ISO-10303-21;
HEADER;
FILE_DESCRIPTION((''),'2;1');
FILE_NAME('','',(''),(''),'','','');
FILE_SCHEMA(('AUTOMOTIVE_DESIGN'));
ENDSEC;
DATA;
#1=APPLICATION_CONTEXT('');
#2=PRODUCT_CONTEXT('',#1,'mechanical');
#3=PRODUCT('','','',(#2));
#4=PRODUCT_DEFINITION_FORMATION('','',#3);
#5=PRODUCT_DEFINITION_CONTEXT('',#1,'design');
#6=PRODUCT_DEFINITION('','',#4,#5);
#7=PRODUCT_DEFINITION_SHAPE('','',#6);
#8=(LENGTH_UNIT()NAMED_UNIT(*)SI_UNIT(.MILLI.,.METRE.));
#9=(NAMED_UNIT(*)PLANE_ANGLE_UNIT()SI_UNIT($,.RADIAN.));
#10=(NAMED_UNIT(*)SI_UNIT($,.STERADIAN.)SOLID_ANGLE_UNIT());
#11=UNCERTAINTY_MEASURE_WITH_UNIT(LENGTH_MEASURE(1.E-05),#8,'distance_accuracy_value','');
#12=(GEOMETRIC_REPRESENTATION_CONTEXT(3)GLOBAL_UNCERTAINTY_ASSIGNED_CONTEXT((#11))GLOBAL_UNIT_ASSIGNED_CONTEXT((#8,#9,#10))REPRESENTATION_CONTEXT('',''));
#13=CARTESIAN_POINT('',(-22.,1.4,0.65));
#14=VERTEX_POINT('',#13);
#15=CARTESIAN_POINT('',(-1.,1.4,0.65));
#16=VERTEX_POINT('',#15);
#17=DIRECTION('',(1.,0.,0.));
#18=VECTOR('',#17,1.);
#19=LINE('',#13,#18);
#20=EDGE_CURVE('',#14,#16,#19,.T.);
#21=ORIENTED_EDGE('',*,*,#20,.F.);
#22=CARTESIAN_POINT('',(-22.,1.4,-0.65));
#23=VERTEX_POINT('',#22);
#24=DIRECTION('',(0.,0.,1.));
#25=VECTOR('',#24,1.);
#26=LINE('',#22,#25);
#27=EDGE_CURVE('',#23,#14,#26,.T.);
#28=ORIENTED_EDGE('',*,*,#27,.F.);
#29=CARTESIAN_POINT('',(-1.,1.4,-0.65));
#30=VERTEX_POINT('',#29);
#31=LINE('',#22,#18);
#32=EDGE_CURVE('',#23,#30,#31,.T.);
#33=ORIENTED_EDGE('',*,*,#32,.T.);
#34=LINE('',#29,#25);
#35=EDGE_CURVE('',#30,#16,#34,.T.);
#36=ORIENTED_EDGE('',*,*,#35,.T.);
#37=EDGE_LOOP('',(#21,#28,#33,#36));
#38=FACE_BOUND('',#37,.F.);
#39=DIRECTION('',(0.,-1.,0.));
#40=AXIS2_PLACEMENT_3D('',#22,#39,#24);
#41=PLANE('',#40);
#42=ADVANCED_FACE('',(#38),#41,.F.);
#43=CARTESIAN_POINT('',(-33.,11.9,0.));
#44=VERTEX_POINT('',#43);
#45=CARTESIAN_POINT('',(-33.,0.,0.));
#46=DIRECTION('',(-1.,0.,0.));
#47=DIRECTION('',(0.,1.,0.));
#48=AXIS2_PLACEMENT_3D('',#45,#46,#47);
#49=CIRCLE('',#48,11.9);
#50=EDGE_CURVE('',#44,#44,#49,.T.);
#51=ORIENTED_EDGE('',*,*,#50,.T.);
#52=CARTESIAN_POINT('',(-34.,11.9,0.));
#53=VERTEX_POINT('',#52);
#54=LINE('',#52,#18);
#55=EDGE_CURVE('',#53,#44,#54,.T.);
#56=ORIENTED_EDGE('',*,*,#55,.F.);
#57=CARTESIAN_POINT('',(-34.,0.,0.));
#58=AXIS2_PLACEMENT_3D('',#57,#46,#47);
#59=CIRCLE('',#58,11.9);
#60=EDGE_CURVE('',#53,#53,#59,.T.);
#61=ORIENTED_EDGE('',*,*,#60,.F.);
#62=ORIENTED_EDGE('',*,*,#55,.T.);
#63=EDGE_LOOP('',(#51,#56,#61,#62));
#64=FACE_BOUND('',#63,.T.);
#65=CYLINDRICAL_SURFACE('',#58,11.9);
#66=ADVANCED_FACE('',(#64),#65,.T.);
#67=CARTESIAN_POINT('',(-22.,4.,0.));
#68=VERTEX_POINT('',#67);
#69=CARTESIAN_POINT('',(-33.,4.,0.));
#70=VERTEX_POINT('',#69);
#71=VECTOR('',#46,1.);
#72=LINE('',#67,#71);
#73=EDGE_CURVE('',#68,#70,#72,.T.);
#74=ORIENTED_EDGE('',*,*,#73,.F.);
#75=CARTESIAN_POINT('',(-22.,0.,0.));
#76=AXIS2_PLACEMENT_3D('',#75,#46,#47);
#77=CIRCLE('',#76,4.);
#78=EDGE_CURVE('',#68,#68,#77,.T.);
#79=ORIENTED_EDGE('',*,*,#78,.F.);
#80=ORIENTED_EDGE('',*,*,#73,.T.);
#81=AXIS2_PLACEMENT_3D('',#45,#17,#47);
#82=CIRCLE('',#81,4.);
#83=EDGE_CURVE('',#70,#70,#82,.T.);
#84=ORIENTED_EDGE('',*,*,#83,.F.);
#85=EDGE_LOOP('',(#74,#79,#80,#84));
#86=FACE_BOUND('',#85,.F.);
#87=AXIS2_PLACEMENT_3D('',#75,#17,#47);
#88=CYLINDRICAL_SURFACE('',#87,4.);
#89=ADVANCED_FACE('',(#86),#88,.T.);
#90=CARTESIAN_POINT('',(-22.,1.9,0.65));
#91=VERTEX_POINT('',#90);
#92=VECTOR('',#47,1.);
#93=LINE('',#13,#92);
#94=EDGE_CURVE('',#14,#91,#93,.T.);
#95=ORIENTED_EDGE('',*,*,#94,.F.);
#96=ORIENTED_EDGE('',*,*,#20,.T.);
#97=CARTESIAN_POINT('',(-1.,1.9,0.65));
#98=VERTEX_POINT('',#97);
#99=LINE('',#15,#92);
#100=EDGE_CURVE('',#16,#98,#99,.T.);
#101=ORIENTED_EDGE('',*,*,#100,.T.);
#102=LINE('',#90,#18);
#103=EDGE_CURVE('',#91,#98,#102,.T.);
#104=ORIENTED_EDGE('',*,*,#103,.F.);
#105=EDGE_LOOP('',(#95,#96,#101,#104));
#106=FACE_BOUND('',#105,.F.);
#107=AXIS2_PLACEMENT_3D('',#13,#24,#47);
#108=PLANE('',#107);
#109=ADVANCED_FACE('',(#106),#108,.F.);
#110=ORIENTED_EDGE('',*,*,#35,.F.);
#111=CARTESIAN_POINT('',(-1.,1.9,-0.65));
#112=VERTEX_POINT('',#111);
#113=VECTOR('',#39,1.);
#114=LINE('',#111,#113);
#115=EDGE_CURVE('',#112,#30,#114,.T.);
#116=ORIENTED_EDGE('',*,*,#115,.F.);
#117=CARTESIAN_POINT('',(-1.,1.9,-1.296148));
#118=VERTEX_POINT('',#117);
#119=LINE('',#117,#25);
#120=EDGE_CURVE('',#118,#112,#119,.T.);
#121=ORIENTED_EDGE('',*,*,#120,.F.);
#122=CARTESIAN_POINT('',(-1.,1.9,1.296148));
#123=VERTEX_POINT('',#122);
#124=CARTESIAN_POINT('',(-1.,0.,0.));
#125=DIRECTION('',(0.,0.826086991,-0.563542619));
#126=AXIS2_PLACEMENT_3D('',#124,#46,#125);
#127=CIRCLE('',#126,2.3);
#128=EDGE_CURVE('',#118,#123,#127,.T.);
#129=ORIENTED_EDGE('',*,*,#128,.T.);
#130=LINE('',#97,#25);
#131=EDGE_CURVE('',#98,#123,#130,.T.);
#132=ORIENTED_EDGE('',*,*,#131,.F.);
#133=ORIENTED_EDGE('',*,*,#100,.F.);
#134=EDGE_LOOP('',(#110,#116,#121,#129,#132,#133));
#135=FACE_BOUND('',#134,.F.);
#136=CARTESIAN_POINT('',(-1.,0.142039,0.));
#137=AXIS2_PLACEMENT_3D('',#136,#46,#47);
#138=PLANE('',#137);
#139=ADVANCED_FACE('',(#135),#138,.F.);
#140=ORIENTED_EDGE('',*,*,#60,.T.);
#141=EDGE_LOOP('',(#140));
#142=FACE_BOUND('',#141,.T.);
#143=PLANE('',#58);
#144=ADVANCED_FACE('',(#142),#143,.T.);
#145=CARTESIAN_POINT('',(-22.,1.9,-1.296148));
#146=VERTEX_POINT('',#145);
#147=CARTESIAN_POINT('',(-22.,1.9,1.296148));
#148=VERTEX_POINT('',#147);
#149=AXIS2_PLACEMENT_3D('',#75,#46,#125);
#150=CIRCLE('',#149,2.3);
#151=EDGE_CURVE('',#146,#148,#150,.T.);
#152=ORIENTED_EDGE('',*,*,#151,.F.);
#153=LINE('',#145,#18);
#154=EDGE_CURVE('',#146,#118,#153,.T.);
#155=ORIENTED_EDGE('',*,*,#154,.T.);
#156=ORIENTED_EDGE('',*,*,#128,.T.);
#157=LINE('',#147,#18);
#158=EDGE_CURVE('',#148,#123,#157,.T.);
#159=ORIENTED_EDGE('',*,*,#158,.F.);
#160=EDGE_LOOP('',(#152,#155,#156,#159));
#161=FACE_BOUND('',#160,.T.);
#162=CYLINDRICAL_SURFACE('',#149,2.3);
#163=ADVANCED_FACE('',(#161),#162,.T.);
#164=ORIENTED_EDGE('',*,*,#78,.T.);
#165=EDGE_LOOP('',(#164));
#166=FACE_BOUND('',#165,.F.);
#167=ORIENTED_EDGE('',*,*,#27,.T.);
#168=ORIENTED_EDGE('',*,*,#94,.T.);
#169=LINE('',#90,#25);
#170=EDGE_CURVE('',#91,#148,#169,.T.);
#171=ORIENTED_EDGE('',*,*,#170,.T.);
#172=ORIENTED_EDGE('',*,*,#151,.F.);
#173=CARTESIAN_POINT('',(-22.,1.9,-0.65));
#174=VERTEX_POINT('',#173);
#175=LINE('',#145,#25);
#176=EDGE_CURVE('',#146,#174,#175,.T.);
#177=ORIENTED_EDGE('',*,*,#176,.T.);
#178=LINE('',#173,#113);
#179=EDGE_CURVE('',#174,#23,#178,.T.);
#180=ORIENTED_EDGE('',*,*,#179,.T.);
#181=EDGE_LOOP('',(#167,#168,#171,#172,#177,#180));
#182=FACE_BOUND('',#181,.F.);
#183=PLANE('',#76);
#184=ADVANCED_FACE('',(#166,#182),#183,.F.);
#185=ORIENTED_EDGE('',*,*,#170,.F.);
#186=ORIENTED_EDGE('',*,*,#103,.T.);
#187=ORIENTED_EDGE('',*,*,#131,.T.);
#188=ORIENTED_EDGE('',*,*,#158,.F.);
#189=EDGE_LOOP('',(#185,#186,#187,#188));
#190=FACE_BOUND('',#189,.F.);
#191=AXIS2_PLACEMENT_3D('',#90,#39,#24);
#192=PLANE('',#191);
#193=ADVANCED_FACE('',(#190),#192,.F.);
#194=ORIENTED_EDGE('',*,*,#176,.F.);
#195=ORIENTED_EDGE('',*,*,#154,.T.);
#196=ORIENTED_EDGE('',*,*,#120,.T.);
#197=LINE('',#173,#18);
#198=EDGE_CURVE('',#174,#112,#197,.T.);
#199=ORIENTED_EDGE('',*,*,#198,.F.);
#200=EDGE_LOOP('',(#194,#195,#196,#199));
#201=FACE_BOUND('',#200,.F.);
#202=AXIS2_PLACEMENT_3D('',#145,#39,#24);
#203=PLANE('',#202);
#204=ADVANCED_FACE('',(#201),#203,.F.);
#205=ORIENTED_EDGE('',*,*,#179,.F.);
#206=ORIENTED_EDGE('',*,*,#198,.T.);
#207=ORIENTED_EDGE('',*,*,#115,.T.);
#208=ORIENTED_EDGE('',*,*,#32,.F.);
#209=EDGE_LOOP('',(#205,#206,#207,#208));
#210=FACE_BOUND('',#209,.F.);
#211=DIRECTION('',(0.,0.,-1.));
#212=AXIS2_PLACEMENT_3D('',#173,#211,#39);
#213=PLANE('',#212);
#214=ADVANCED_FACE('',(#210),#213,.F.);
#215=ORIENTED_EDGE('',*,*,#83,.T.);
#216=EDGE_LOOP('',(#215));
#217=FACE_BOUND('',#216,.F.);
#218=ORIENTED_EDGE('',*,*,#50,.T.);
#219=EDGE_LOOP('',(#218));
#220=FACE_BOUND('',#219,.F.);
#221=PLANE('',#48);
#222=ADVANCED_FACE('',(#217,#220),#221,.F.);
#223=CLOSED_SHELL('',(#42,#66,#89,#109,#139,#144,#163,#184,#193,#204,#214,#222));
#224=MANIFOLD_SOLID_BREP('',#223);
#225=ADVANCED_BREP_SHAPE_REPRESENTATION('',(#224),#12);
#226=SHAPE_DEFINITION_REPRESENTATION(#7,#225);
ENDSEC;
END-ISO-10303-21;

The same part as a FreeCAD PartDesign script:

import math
import FreeCAD as App
import Part
import Sketcher

V = App.Vector
Q = App.Units.Quantity

doc = App.newDocument("Part")
body = doc.addObject("PartDesign::Body", "Body")

# Sketch on YZ plane
sketch1 = doc.addObject("Sketcher::SketchObject", "Sketch")
body.addObject(sketch1)
sketch1.AttachmentSupport = (doc.YZ_Plane, [""])
sketch1.MapMode = "FlatFace"
sketch1.addGeometry(Part.Circle(V(0, 0, 0), V(0, 0, 1), 4), False)
sketch1.addConstraint([
    Sketcher.Constraint("Coincident", 0, 3, -1, 1),
    Sketcher.Constraint("Diameter", 0, Q("8 mm")),
])
pad1 = doc.addObject("PartDesign::Pad", "Pad")
body.addObject(pad1)
pad1.Profile = sketch1
pad1.Length = 12

# Sketch on YZ plane
sketch2 = doc.addObject("Sketcher::SketchObject", "Sketch001")
body.addObject(sketch2)
sketch2.AttachmentSupport = (doc.YZ_Plane, [""])
sketch2.MapMode = "FlatFace"
sketch2.addGeometry([
    Part.ArcOfCircle(Part.Circle(V(0, 0, 0), V(0, 0, 1), 2.3), math.radians(34), math.radians(326)),  # 0
    Part.LineSegment(V(1.9, -1.3, 0), V(1.9, -0.7, 0)),  # 1
    Part.LineSegment(V(1.9, -0.7, 0), V(1.4, -0.7, 0)),  # 2
    Part.LineSegment(V(1.4, -0.7, 0), V(1.4, 0.7, 0)),  # 3
    Part.LineSegment(V(1.4, 0.7, 0), V(1.9, 0.7, 0)),  # 4
    Part.LineSegment(V(1.9, 0.7, 0), V(1.9, 1.3, 0)),  # 5
], False)
sketch2.addConstraint([
    Sketcher.Constraint("Coincident", 0, 2, 1, 1),
    Sketcher.Constraint("Coincident", 1, 2, 2, 1),
    Sketcher.Constraint("Coincident", 2, 2, 3, 1),
    Sketcher.Constraint("Coincident", 3, 2, 4, 1),
    Sketcher.Constraint("Coincident", 4, 2, 5, 1),
    Sketcher.Constraint("Coincident", 5, 2, 0, 1),
    Sketcher.Constraint("Vertical", 1),
    Sketcher.Constraint("Horizontal", 2),
    Sketcher.Constraint("Vertical", 3),
    Sketcher.Constraint("Horizontal", 4),
    Sketcher.Constraint("Vertical", 5),
    Sketcher.Constraint("Coincident", 0, 3, -1, 1),
    Sketcher.Constraint("Symmetric", 1, 2, 4, 2, -1),
    Sketcher.Constraint("Radius", 0, Q("2.3 mm")),
    Sketcher.Constraint("DistanceX", 2, 2, 2, 1, Q("0.5 mm")),
    Sketcher.Constraint("DistanceY", 3, 1, 3, 2, Q("1.3 mm")),
    Sketcher.Constraint("DistanceX", -1, 1, 0, 2, Q("1.9 mm")),
])
pad2 = doc.addObject("PartDesign::Pad", "Pad001")
body.addObject(pad2)
pad2.Profile = sketch2
pad2.Length = 21
pad2.Reversed = True

# Sketch on YZ plane
sketch3 = doc.addObject("Sketcher::SketchObject", "Sketch002")
body.addObject(sketch3)
sketch3.AttachmentSupport = (doc.YZ_Plane, [""])
sketch3.MapMode = "FlatFace"
sketch3.AttachmentOffset = App.Placement(V(0, 0, 12), App.Rotation())
sketch3.addGeometry(Part.Circle(V(0, 0, 0), V(0, 0, 1), 12), False)
sketch3.addConstraint([
    Sketcher.Constraint("Coincident", 0, 3, -1, 1),
    Sketcher.Constraint("Diameter", 0, Q("23.8 mm")),
])
pad3 = doc.addObject("PartDesign::Pad", "Pad002")
body.addObject(pad3)
pad3.Profile = sketch3
pad3.Length = 1
pad3.Reversed = True
body2 = doc.addObject("PartDesign::Body", "Body001")
doc.recompute()

body.Placement = App.Placement(V(-22, 0, 0), App.Rotation(V(0, 1, 0), 180))
boolean = doc.addObject("PartDesign::Boolean", "Boolean")
body2.addObject(boolean)
boolean.Type = "Fuse"
boolean.addObjects([body])

doc.recompute()
